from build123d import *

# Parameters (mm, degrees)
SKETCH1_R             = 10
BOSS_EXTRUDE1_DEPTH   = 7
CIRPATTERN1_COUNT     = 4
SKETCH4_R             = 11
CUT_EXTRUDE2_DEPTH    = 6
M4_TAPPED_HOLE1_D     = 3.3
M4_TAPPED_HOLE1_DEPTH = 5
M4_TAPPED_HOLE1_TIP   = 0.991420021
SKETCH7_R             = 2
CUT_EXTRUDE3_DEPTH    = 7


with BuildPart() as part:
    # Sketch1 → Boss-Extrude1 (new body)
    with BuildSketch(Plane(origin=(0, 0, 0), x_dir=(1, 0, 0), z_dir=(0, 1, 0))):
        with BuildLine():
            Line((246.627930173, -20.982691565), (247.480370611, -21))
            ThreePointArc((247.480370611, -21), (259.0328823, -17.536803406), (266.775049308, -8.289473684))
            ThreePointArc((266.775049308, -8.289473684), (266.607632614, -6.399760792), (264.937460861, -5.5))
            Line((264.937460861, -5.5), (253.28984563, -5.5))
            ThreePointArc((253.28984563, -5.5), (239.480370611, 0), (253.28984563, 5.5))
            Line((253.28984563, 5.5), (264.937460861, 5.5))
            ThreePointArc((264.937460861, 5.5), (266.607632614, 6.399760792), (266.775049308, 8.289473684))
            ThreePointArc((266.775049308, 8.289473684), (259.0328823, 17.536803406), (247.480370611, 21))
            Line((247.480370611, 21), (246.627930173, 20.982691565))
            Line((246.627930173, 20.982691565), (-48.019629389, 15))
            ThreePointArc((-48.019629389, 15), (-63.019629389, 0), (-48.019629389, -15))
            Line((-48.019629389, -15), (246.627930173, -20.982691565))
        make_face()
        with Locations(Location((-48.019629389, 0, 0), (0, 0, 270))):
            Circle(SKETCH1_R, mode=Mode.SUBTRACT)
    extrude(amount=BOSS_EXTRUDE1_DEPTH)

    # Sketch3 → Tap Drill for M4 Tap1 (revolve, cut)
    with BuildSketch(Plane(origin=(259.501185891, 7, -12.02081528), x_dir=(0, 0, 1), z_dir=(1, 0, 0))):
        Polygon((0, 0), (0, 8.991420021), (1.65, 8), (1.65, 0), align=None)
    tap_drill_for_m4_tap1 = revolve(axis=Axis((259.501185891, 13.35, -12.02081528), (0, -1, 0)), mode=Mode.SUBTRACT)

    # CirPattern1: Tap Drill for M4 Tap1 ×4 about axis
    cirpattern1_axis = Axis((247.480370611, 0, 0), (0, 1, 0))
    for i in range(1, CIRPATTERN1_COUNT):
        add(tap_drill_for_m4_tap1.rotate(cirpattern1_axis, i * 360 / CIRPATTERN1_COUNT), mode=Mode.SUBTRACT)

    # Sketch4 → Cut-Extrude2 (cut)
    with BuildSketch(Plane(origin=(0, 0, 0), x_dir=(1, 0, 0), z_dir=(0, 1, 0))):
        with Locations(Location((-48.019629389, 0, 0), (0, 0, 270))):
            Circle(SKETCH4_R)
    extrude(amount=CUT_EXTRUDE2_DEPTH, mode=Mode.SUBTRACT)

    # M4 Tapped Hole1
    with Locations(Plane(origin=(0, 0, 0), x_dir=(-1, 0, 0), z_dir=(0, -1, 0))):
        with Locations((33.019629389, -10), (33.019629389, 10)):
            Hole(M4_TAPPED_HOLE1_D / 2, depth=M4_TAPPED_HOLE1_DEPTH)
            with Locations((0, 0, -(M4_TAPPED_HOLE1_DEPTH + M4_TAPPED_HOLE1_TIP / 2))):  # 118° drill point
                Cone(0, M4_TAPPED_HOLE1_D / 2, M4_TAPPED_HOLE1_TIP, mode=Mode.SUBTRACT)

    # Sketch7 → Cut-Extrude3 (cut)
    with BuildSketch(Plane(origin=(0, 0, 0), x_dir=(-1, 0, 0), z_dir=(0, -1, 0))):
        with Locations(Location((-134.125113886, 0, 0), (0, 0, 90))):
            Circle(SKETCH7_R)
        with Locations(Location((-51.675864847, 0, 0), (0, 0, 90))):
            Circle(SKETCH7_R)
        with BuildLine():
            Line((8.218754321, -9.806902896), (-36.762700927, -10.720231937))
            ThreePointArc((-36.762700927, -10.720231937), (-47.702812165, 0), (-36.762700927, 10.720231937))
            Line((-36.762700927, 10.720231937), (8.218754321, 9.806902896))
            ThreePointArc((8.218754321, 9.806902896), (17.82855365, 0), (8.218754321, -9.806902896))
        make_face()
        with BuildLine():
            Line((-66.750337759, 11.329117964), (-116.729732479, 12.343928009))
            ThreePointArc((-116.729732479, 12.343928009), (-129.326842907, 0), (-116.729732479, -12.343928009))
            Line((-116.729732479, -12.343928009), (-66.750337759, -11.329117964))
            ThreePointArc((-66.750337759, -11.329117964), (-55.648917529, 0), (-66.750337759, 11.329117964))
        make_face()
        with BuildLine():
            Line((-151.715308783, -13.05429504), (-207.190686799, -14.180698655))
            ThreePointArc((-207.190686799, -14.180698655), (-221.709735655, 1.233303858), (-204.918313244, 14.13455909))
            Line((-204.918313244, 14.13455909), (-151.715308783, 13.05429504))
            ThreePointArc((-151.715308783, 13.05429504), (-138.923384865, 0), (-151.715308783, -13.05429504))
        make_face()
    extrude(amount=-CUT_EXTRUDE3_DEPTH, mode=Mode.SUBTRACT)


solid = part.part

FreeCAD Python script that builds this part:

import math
import FreeCAD as App
import Part
import Sketcher
Q = App.Units.Quantity

doc = App.newDocument("Part")
body = doc.addObject("PartDesign::Body", "Body")

# Sketch on XZ plane
sketch1 = doc.addObject("Sketcher::SketchObject", "Sketch")
body.addObject(sketch1)
sketch1.AttachmentSupport = (doc.XZ_Plane, [""])
sketch1.MapMode = "FlatFace"
sketch1.addGeometry([
    Part.LineSegment(App.Vector(246.62793, 20.982692, 0), App.Vector(247.480371, 21, 0)),  # 0
    Part.ArcOfCircle(Part.Circle(App.Vector(247.480371, 0, 0), App.Vector(0, 0, 1), 21), math.radians(23.249563), math.radians(90)),  # 1
    Part.ArcOfCircle(Part.Circle(App.Vector(264.937461, 7.5, 0), App.Vector(0, 0, 1), 2), math.radians(-90), math.radians(23.249563)),  # 2
    Part.LineSegment(App.Vector(264.937461, 5.5, 0), App.Vector(253.289846, 5.5, 0)),  # 3
    Part.ArcOfCircle(Part.Circle(App.Vector(247.480371, 0, 0), App.Vector(0, 0, 1), 8), math.radians(43.432537), math.radians(316.567463)),  # 4
    Part.LineSegment(App.Vector(253.289846, -5.5, 0), App.Vector(264.937461, -5.5, 0)),  # 5
    Part.ArcOfCircle(Part.Circle(App.Vector(264.937461, -7.5, 0), App.Vector(0, 0, 1), 2), math.radians(-23.249563), math.radians(90)),  # 6
    Part.ArcOfCircle(Part.Circle(App.Vector(247.480371, 0, 0), App.Vector(0, 0, 1), 21), math.radians(-90), math.radians(-23.249563)),  # 7
    Part.LineSegment(App.Vector(247.480371, -21, 0), App.Vector(246.62793, -20.982692, 0)),  # 8
    Part.LineSegment(App.Vector(246.62793, -20.982692, 0), App.Vector(-48.019629, -15, 0)),  # 9
    Part.ArcOfCircle(Part.Circle(App.Vector(-48.019629, 0, 0), App.Vector(0, 0, 1), 15), math.radians(90), math.radians(270)),  # 10
    Part.LineSegment(App.Vector(-48.019629, 15, 0), App.Vector(246.62793, 20.982692, 0)),  # 11
    Part.Circle(App.Vector(-48.019629, 0, 0), App.Vector(0, 0, 1), 10),  # 12
], False)
sketch1.addConstraint([
    Sketcher.Constraint("Coincident", 0, 2, 1, 2),
    Sketcher.Constraint("Tangent", 1, 1, 2, 2),
    Sketcher.Constraint("Tangent", 2, 1, 3, 1),
    Sketcher.Constraint("Coincident", 3, 2, 4, 1),
    Sketcher.Constraint("Coincident", 4, 2, 5, 1),
    Sketcher.Constraint("Tangent", 5, 2, 6, 2),
    Sketcher.Constraint("Tangent", 6, 1, 7, 2),
    Sketcher.Constraint("Coincident", 7, 1, 8, 1),
    Sketcher.Constraint("Coincident", 8, 2, 9, 1),
    Sketcher.Constraint("Coincident", 9, 2, 10, 2),
    Sketcher.Constraint("Coincident", 10, 1, 11, 1),
    Sketcher.Constraint("Coincident", 11, 2, 0, 1),
    Sketcher.Constraint("Horizontal", 3),
    Sketcher.Constraint("Horizontal", 5),
    Sketcher.Constraint("Coincident", 4, 3, 1, 3),
    Sketcher.Constraint("Coincident", 7, 3, 1, 3),
    Sketcher.Constraint("Coincident", 12, 3, 10, 3),
    Sketcher.Constraint("Equal", 2, 6),
    Sketcher.Constraint("Equal", 1, 7),
    Sketcher.Constraint("Symmetric", 2, 3, 6, 3, -1),
    Sketcher.Constraint("Symmetric", 9, 2, 10, 1, -1),
    Sketcher.Constraint("Symmetric", 8, 2, 11, 2, -1),
    Sketcher.Constraint("Parallel", 8, 9),
    Sketcher.Constraint("Parallel", 0, 11),
    Sketcher.Constraint("Vertical", 7, 3, 0, 2),
    Sketcher.Constraint("Vertical", 12, 3, 9, 2),
    Sketcher.Constraint("Diameter", 12, 20.0),
    Sketcher.Constraint("Radius", 1, 21.0),
    Sketcher.Constraint("Radius", 2, 2.0),
    Sketcher.Constraint("Radius", 4, 8.0),
    Sketcher.Constraint("Radius", 10, 15.0),
    Sketcher.Constraint("DistanceY", 6, 3, 2, 3, 15.0),
    Sketcher.Constraint("DistanceX", 10, 3, 4, 3, 295.5),
    Sketcher.Constraint("Distance", 9, 294.708291),
    Sketcher.Constraint("DistanceX", -1, 1, 1, 3, 247.480371),
])
pad1 = doc.addObject("PartDesign::Pad", "Pad")
body.addObject(pad1)
pad1.Profile = sketch1
pad1.Length = 7
pad1.Reversed = True

# Sketch on YZ plane
sketch2 = doc.addObject("Sketcher::SketchObject", "Sketch001")
body.addObject(sketch2)
sketch2.AttachmentSupport = (doc.YZ_Plane, [""])
sketch2.MapMode = "FlatFace"
sketch2.AttachmentOffset = App.Placement(App.Vector(0, 0, 259.501186), App.Rotation())
sketch2.addGeometry([
    Part.LineSegment(App.Vector(-1.99142, -12.020815, 0), App.Vector(7, -12.020815, 0)),
    Part.LineSegment(App.Vector(7, -12.020815, 0), App.Vector(7, -10.370815, 0)),
    Part.LineSegment(App.Vector(7, -10.370815, 0), App.Vector(-1, -10.370815, 0)),
    Part.LineSegment(App.Vector(-1, -10.370815, 0), App.Vector(-1.99142, -12.020815, 0)),
], False)
sketch2.addGeometry(Part.LineSegment(App.Vector(7, -12.020815, 0), App.Vector(-1.99142, -12.020815, 0)), True)  # axis
sketch2.addConstraint([
    Sketcher.Constraint("Coincident", 0, 2, 1, 1),
    Sketcher.Constraint("Coincident", 1, 2, 2, 1),
    Sketcher.Constraint("Coincident", 2, 2, 3, 1),
    Sketcher.Constraint("Coincident", 3, 2, 0, 1),
    Sketcher.Constraint("Horizontal", 0),
    Sketcher.Constraint("Vertical", 1),
    Sketcher.Constraint("Horizontal", 2),
    Sketcher.Constraint("Horizontal", 4),
    Sketcher.Constraint("Coincident", 4, 1, 0, 2),
    Sketcher.Constraint("Equal", 0, 4),
    Sketcher.Constraint("DistanceX", 2, 2, 2, 1, 8.0),
    Sketcher.Constraint("Angle", 3, Q("-121 deg")),
    Sketcher.Constraint("DistanceX", -1, 1, 0, 2, 7.0),
    Sketcher.Constraint("DistanceY", 1, 1, 1, 2, 1.65),
    Sketcher.Constraint("DistanceY", 0, 2, -1, 1, 12.020815),
])
groove = doc.addObject("PartDesign::Groove", "Groove")
body.addObject(groove)
groove.Profile = sketch2
groove.ReferenceAxis = (sketch2, ["Axis0"])
groove.Angle = 360
doc.recompute()

datumline = doc.addObject("PartDesign::Line", "DatumLine")
body.addObject(datumline)
datumline.Placement = App.Placement(App.Vector(247.480371, 0, 0), App.Rotation(App.Vector(0, 0, 1), App.Vector(0, 1, 0)))
polarpattern = doc.addObject("PartDesign::PolarPattern", "PolarPattern")
body.addObject(polarpattern)
polarpattern.Originals = [groove]
polarpattern.Axis = (datumline, [""])
polarpattern.Angle = 360
polarpattern.Occurrences = 4
body.Tip = polarpattern

# Sketch on XZ plane
sketch3 = doc.addObject("Sketcher::SketchObject", "Sketch002")
body.addObject(sketch3)
sketch3.AttachmentSupport = (doc.XZ_Plane, [""])
sketch3.MapMode = "FlatFace"
sketch3.addGeometry(Part.Circle(App.Vector(-48.019629, 0, 0), App.Vector(0, 0, 1), 11), False)
sketch3.addConstraint([
    Sketcher.Constraint("PointOnObject", 0, 3, -1),
    Sketcher.Constraint("Diameter", 0, 22.0),
    Sketcher.Constraint("DistanceX", 0, 3, -1, 1, 48.019629),
])
pocket1 = doc.addObject("PartDesign::Pocket", "Pocket")
body.addObject(pocket1)
pocket1.Profile = sketch3
pocket1.Length = 6

# Sketch on XZ plane
sketch4 = doc.addObject("Sketcher::SketchObject", "Sketch003")
body.addObject(sketch4)
sketch4.AttachmentSupport = (doc.XZ_Plane, [""])
sketch4.MapMode = "FlatFace"
sketch4.addGeometry([
    Part.Circle(App.Vector(-33.019629, 10, 0), App.Vector(0, 0, 1), 1.65),
    Part.Circle(App.Vector(-33.019629, -10, 0), App.Vector(0, 0, 1), 1.65),
], False)
sketch4.addConstraint([
    Sketcher.Constraint("Equal", 0, 1),
    Sketcher.Constraint("Symmetric", 0, 3, 1, 3, -1),
    Sketcher.Constraint("Diameter", 0, 3.3),
    Sketcher.Constraint("DistanceY", -1, 1, 0, 3, 10.0),
    Sketcher.Constraint("DistanceX", 0, 3, -1, 1, 33.019629),
])
doc.recompute()
hole = doc.addObject("PartDesign::Hole", "Hole")
body.addObject(hole)
hole.Profile = sketch4
hole.ThreadType = "None"
hole.Diameter = 3.3
hole.DepthType = "Dimension"
hole.Depth = 5
hole.DrillPoint = "Angled"
hole.DrillPointAngle = 118

# Sketch on XZ plane
sketch5 = doc.addObject("Sketcher::SketchObject", "Sketch004")
body.addObject(sketch5)
sketch5.AttachmentSupport = (doc.XZ_Plane, [""])
sketch5.MapMode = "FlatFace"
sketch5.addGeometry([
    Part.Circle(App.Vector(134.125114, 0, 0), App.Vector(0, 0, 1), 2),  # 0
    Part.Circle(App.Vector(51.675865, 0, 0), App.Vector(0, 0, 1), 2),  # 1
    Part.LineSegment(App.Vector(36.762701, 10.720232, 0), App.Vector(-8.218754, 9.806903, 0)),  # 2
    Part.ArcOfCircle(Part.Circle(App.Vector(-8.019629, 0, 0), App.Vector(0, 0, 1), 9.808924), math.radians(91.163206), math.radians(268.836794)),  # 3
    Part.LineSegment(App.Vector(-8.218754, -9.806903, 0), App.Vector(36.762701, -10.720232, 0)),  # 4
    Part.ArcOfCircle(Part.Circle(App.Vector(36.980371, 0, 0), App.Vector(0, 0, 1), 10.722442), math.radians(-91.163206), math.radians(91.163206)),  # 5
    Part.LineSegment(App.Vector(66.750338, -11.329118, 0), App.Vector(116.729732, -12.343928, 0)),  # 6
    Part.ArcOfCircle(Part.Circle(App.Vector(116.980371, 0, 0), App.Vector(0, 0, 1), 12.346472), math.radians(-91.163206), math.radians(91.163206)),  # 7
    Part.LineSegment(App.Vector(116.729732, 12.343928, 0), App.Vector(66.750338, 11.329118, 0)),  # 8
    Part.ArcOfCircle(Part.Circle(App.Vector(66.980371, 0, 0), App.Vector(0, 0, 1), 11.331453), math.radians(91.163206), math.radians(268.836794)),  # 9
    Part.LineSegment(App.Vector(207.190687, 14.180699, 0), App.Vector(151.715309, 13.054295, 0)),  # 10
    Part.ArcOfCircle(Part.Circle(App.Vector(151.980371, 0, 0), App.Vector(0, 0, 1), 13.056986), math.radians(91.163206), math.radians(268.836794)),  # 11
    Part.LineSegment(App.Vector(151.715309, -13.054295, 0), App.Vector(204.918313, -14.134559, 0)),  # 12
    Part.ArcOfCircle(Part.Circle(App.Vector(207.480475, -0.091368, 0), App.Vector(0, 0, 1), 14.275009), math.radians(-100.339812), math.radians(91.163206)),  # 13
], False)
sketch5.addConstraint([
    Sketcher.Constraint("Coincident", 2, 2, 3, 1),
    Sketcher.Constraint("Coincident", 3, 2, 4, 1),
    Sketcher.Constraint("Coincident", 4, 2, 5, 1),
    Sketcher.Constraint("Coincident", 5, 2, 2, 1),
    Sketcher.Constraint("Coincident", 6, 2, 7, 1),
    Sketcher.Constraint("Coincident", 7, 2, 8, 1),
    Sketcher.Constraint("Coincident", 8, 2, 9, 1),
    Sketcher.Constraint("Coincident", 9, 2, 6, 1),
    Sketcher.Constraint("Coincident", 10, 2, 11, 1),
    Sketcher.Constraint("Coincident", 11, 2, 12, 1),
    Sketcher.Constraint("Coincident", 12, 2, 13, 1),
    Sketcher.Constraint("Coincident", 13, 2, 10, 1),
    Sketcher.Constraint("PointOnObject", 0, 3, -1),
    Sketcher.Constraint("PointOnObject", 1, 3, -1),
    Sketcher.Constraint("PointOnObject", 3, 3, -1),
    Sketcher.Constraint("PointOnObject", 5, 3, -1),
    Sketcher.Constraint("PointOnObject", 7, 3, -1),
    Sketcher.Constraint("PointOnObject", 9, 3, -1),
    Sketcher.Constraint("PointOnObject", 11, 3, -1),
    Sketcher.Constraint("Diameter", 0, 4.0),
    Sketcher.Constraint("Diameter", 1, 4.0),
    Sketcher.Constraint("DistanceX", 3, 3, 5, 3, 45.0),
    Sketcher.Constraint("DistanceX", 5, 3, 7, 3, 80.0),
    Sketcher.Constraint("DistanceX", 5, 3, 9, 3, 30.0),
    Sketcher.Constraint("DistanceX", 7, 3, 11, 3, 35.0),
    Sketcher.Constraint("Radius", 5, 10.722442),
    Sketcher.Constraint("Radius", 13, 14.275009),
    Sketcher.Constraint("Radius", 3, 9.808924),
    Sketcher.Constraint("Radius", 7, 12.346472),
    Sketcher.Constraint("Radius", 9, 11.331453),
    Sketcher.Constraint("Radius", 11, 13.056986),
    Sketcher.Constraint("DistanceX", -1, 1, 4, 2, 36.762701),
    Sketcher.Constraint("DistanceX", -1, 1, 5, 2, 36.762701),
    Sketcher.Constraint("DistanceY", -1, 1, 13, 2, 14.180699),
    Sketcher.Constraint("DistanceX", 0, 3, 12, 2, 70.793199),
    Sketcher.Constraint("Distance", 12, 53.21397),
    Sketcher.Constraint("DistanceX", 3, 3, -1, 1, 8.019629),
    Sketcher.Constraint("DistanceY", 13, 3, -1, 1, 0.091368),
    Sketcher.Constraint("DistanceY", 6, 2, -1, 1, 12.343928),
    Sketcher.Constraint("DistanceY", -1, 1, 7, 2, 12.343928),
    Sketcher.Constraint("DistanceX", -1, 1, 10, 2, 151.715309),
    Sketcher.Constraint("DistanceX", -1, 1, 11, 2, 151.715309),
    Sketcher.Constraint("DistanceY", 12, 2, -1, 1, 14.134559),
    Sketcher.Constraint("DistanceX", 1, 3, 0, 3, 82.449249),
    Sketcher.Constraint("DistanceX", 2, 2, 1, 3, 59.894619),
    Sketcher.Constraint("DistanceX", 3, 2, 1, 3, 59.894619),
    Sketcher.Constraint("DistanceY", 4, 2, 8, 2, 22.04935),
    Sketcher.Constraint("Distance", 6, 49.989696),
])
pocket2 = doc.addObject("PartDesign::Pocket", "Pocket001")
body.addObject(pocket2)
pocket2.Profile = sketch5
pocket2.Length = 7

doc.recompute()
